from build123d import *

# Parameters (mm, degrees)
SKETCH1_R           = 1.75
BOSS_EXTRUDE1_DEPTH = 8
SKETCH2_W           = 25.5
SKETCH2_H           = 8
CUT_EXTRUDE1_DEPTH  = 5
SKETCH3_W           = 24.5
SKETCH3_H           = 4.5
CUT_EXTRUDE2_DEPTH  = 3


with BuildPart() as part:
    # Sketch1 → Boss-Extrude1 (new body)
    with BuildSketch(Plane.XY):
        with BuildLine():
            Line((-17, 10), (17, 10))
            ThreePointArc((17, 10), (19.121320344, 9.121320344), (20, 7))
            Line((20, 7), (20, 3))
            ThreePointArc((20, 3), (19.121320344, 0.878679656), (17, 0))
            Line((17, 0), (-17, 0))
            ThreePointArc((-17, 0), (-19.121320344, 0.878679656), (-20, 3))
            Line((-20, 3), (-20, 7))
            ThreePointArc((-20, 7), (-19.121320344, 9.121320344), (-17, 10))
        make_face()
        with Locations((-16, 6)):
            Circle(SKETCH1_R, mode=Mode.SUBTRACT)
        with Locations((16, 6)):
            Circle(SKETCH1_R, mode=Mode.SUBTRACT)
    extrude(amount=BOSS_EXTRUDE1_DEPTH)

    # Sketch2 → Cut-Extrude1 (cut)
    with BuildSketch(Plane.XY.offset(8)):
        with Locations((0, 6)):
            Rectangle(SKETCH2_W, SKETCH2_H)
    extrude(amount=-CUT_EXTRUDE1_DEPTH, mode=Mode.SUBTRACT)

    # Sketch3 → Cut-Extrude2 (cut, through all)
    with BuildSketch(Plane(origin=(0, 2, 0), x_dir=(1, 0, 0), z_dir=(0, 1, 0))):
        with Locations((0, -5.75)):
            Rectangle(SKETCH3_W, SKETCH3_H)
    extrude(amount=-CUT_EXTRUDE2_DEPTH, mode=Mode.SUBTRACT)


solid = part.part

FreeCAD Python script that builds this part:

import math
import FreeCAD as App
import Part
import Sketcher

V = App.Vector
Q = App.Units.Quantity

doc = App.newDocument("Part")
body = doc.addObject("PartDesign::Body", "Body")

# Sketch on XY plane
sketch1 = body.newObject("Sketcher::SketchObject", "Sketch")
sketch1.AttachmentSupport = (doc.getObject("XY_Plane"), [""])
sketch1.MapMode = "FlatFace"
sketch1.addGeometry([
    Part.LineSegment(V(17, 10, 0), V(-17, 10, 0)),  # 0
    Part.ArcOfCircle(Part.Circle(V(-17, 7, 0), V(0, 0, 1), 3), math.radians(90), math.radians(180)),  # 1
    Part.LineSegment(V(-20, 7, 0), V(-20, 3, 0)),  # 2
    Part.ArcOfCircle(Part.Circle(V(-17, 3, 0), V(0, 0, 1), 3), math.radians(180), math.radians(270)),  # 3
    Part.LineSegment(V(-17, 0, 0), V(17, 0, 0)),  # 4
    Part.ArcOfCircle(Part.Circle(V(17, 3, 0), V(0, 0, 1), 3), math.radians(-90), math.radians(0)),  # 5
    Part.LineSegment(V(20, 3, 0), V(20, 7, 0)),  # 6
    Part.ArcOfCircle(Part.Circle(V(17, 7, 0), V(0, 0, 1), 3), math.radians(0), math.radians(90)),  # 7
    Part.Circle(V(16, 6, 0), V(0, 0, 1), 1.8),  # 8
    Part.Circle(V(-16, 6, 0), V(0, 0, 1), 1.8),  # 9
], False)
sketch1.addConstraint([
    Sketcher.Constraint("Tangent", 0, 2, 1, 1),
    Sketcher.Constraint("Tangent", 1, 2, 2, 1),
    Sketcher.Constraint("Tangent", 2, 2, 3, 1),
    Sketcher.Constraint("Tangent", 3, 2, 4, 1),
    Sketcher.Constraint("Tangent", 4, 2, 5, 1),
    Sketcher.Constraint("Tangent", 5, 2, 6, 1),
    Sketcher.Constraint("Tangent", 6, 2, 7, 1),
    Sketcher.Constraint("Tangent", 7, 2, 0, 1),
    Sketcher.Constraint("Horizontal", 0),
    Sketcher.Constraint("Vertical", 2),
    Sketcher.Constraint("Horizontal", 4),
    Sketcher.Constraint("Vertical", 6),
    Sketcher.Constraint("Equal", 1, 3),
    Sketcher.Constraint("Equal", 3, 5),
    Sketcher.Constraint("Equal", 5, 7),
    Sketcher.Constraint("Equal", 8, 9),
    Sketcher.Constraint("Symmetric", 3, 2, 4, 2, -1, 1),
    Sketcher.Constraint("Symmetric", 8, 3, 9, 3, -2),
    Sketcher.Constraint("Radius", 1, Q("3 mm")),
    Sketcher.Constraint("Diameter", 8, Q("3.5 mm")),
    Sketcher.Constraint("DistanceX", 0, 2, 0, 1, Q("34 mm")),
    Sketcher.Constraint("DistanceY", 2, 2, 2, 1, Q("4 mm")),
    Sketcher.Constraint("DistanceX", -1, 1, 8, 3, Q("16 mm")),
    Sketcher.Constraint("DistanceY", -1, 1, 8, 3, Q("6 mm")),
])
pad1 = body.newObject("PartDesign::Pad", "Pad")
pad1.Profile = sketch1
pad1.Length = 8

# Sketch on XY plane
sketch2 = body.newObject("Sketcher::SketchObject", "Sketch001")
sketch2.AttachmentSupport = (doc.getObject("XY_Plane"), [""])
sketch2.MapMode = "FlatFace"
sketch2.AttachmentOffset = App.Placement(V(0, 0, 8), App.Rotation())
sketch2.addGeometry([
    Part.LineSegment(V(-13, 10, 0), V(-13, 2, 0)),
    Part.LineSegment(V(-13, 2, 0), V(13, 2, 0)),
    Part.LineSegment(V(13, 2, 0), V(13, 10, 0)),
    Part.LineSegment(V(13, 10, 0), V(-13, 10, 0)),
], False)
sketch2.addConstraint([
    Sketcher.Constraint("Coincident", 0, 2, 1, 1),
    Sketcher.Constraint("Coincident", 1, 2, 2, 1),
    Sketcher.Constraint("Coincident", 2, 2, 3, 1),
    Sketcher.Constraint("Coincident", 3, 2, 0, 1),
    Sketcher.Constraint("Vertical", 0),
    Sketcher.Constraint("Horizontal", 1),
    Sketcher.Constraint("Vertical", 2),
    Sketcher.Constraint("Horizontal", 3),
    Sketcher.Constraint("DistanceY", 0, 2, 0, 1, Q("8 mm")),
    Sketcher.Constraint("DistanceX", 1, 1, 1, 2, Q("25.5 mm")),
    Sketcher.Constraint("DistanceY", -1, 1, 0, 2, Q("2 mm")),
    Sketcher.Constraint("DistanceX", 0, 2, -1, 1, Q("12.75 mm")),
])
pocket1 = body.newObject("PartDesign::Pocket", "Pocket")
pocket1.Profile = sketch2
pocket1.Length = 5

# Sketch on XZ plane
sketch3 = body.newObject("Sketcher::SketchObject", "Sketch002")
sketch3.AttachmentSupport = (doc.getObject("XZ_Plane"), [""])
sketch3.MapMode = "FlatFace"
sketch3.AttachmentOffset = App.Placement(V(0, 0, -2), App.Rotation())
sketch3.addGeometry([
    Part.LineSegment(V(-12.2, 3.5, 0), V(-12.2, 8, 0)),
    Part.LineSegment(V(-12.2, 8, 0), V(12.2, 8, 0)),
    Part.LineSegment(V(12.2, 8, 0), V(12.2, 3.5, 0)),
    Part.LineSegment(V(12.2, 3.5, 0), V(-12.2, 3.5, 0)),
], False)
sketch3.addConstraint([
    Sketcher.Constraint("Coincident", 0, 2, 1, 1),
    Sketcher.Constraint("Coincident", 1, 2, 2, 1),
    Sketcher.Constraint("Coincident", 2, 2, 3, 1),
    Sketcher.Constraint("Coincident", 3, 2, 0, 1),
    Sketcher.Constraint("Vertical", 0),
    Sketcher.Constraint("Horizontal", 1),
    Sketcher.Constraint("Vertical", 2),
    Sketcher.Constraint("Horizontal", 3),
    Sketcher.Constraint("DistanceX", 1, 1, 1, 2, Q("24.5 mm")),
    Sketcher.Constraint("DistanceY", 0, 1, 0, 2, Q("4.5 mm")),
    Sketcher.Constraint("DistanceY", -1, 1, 0, 2, Q("8 mm")),
    Sketcher.Constraint("DistanceX", 0, 2, -1, 1, Q("12.25 mm")),
])
pocket2 = body.newObject("PartDesign::Pocket", "Pocket001")
pocket2.Profile = sketch3
pocket2.Type = "ThroughAll"
pocket2.Reversed = True

doc.recompute()
